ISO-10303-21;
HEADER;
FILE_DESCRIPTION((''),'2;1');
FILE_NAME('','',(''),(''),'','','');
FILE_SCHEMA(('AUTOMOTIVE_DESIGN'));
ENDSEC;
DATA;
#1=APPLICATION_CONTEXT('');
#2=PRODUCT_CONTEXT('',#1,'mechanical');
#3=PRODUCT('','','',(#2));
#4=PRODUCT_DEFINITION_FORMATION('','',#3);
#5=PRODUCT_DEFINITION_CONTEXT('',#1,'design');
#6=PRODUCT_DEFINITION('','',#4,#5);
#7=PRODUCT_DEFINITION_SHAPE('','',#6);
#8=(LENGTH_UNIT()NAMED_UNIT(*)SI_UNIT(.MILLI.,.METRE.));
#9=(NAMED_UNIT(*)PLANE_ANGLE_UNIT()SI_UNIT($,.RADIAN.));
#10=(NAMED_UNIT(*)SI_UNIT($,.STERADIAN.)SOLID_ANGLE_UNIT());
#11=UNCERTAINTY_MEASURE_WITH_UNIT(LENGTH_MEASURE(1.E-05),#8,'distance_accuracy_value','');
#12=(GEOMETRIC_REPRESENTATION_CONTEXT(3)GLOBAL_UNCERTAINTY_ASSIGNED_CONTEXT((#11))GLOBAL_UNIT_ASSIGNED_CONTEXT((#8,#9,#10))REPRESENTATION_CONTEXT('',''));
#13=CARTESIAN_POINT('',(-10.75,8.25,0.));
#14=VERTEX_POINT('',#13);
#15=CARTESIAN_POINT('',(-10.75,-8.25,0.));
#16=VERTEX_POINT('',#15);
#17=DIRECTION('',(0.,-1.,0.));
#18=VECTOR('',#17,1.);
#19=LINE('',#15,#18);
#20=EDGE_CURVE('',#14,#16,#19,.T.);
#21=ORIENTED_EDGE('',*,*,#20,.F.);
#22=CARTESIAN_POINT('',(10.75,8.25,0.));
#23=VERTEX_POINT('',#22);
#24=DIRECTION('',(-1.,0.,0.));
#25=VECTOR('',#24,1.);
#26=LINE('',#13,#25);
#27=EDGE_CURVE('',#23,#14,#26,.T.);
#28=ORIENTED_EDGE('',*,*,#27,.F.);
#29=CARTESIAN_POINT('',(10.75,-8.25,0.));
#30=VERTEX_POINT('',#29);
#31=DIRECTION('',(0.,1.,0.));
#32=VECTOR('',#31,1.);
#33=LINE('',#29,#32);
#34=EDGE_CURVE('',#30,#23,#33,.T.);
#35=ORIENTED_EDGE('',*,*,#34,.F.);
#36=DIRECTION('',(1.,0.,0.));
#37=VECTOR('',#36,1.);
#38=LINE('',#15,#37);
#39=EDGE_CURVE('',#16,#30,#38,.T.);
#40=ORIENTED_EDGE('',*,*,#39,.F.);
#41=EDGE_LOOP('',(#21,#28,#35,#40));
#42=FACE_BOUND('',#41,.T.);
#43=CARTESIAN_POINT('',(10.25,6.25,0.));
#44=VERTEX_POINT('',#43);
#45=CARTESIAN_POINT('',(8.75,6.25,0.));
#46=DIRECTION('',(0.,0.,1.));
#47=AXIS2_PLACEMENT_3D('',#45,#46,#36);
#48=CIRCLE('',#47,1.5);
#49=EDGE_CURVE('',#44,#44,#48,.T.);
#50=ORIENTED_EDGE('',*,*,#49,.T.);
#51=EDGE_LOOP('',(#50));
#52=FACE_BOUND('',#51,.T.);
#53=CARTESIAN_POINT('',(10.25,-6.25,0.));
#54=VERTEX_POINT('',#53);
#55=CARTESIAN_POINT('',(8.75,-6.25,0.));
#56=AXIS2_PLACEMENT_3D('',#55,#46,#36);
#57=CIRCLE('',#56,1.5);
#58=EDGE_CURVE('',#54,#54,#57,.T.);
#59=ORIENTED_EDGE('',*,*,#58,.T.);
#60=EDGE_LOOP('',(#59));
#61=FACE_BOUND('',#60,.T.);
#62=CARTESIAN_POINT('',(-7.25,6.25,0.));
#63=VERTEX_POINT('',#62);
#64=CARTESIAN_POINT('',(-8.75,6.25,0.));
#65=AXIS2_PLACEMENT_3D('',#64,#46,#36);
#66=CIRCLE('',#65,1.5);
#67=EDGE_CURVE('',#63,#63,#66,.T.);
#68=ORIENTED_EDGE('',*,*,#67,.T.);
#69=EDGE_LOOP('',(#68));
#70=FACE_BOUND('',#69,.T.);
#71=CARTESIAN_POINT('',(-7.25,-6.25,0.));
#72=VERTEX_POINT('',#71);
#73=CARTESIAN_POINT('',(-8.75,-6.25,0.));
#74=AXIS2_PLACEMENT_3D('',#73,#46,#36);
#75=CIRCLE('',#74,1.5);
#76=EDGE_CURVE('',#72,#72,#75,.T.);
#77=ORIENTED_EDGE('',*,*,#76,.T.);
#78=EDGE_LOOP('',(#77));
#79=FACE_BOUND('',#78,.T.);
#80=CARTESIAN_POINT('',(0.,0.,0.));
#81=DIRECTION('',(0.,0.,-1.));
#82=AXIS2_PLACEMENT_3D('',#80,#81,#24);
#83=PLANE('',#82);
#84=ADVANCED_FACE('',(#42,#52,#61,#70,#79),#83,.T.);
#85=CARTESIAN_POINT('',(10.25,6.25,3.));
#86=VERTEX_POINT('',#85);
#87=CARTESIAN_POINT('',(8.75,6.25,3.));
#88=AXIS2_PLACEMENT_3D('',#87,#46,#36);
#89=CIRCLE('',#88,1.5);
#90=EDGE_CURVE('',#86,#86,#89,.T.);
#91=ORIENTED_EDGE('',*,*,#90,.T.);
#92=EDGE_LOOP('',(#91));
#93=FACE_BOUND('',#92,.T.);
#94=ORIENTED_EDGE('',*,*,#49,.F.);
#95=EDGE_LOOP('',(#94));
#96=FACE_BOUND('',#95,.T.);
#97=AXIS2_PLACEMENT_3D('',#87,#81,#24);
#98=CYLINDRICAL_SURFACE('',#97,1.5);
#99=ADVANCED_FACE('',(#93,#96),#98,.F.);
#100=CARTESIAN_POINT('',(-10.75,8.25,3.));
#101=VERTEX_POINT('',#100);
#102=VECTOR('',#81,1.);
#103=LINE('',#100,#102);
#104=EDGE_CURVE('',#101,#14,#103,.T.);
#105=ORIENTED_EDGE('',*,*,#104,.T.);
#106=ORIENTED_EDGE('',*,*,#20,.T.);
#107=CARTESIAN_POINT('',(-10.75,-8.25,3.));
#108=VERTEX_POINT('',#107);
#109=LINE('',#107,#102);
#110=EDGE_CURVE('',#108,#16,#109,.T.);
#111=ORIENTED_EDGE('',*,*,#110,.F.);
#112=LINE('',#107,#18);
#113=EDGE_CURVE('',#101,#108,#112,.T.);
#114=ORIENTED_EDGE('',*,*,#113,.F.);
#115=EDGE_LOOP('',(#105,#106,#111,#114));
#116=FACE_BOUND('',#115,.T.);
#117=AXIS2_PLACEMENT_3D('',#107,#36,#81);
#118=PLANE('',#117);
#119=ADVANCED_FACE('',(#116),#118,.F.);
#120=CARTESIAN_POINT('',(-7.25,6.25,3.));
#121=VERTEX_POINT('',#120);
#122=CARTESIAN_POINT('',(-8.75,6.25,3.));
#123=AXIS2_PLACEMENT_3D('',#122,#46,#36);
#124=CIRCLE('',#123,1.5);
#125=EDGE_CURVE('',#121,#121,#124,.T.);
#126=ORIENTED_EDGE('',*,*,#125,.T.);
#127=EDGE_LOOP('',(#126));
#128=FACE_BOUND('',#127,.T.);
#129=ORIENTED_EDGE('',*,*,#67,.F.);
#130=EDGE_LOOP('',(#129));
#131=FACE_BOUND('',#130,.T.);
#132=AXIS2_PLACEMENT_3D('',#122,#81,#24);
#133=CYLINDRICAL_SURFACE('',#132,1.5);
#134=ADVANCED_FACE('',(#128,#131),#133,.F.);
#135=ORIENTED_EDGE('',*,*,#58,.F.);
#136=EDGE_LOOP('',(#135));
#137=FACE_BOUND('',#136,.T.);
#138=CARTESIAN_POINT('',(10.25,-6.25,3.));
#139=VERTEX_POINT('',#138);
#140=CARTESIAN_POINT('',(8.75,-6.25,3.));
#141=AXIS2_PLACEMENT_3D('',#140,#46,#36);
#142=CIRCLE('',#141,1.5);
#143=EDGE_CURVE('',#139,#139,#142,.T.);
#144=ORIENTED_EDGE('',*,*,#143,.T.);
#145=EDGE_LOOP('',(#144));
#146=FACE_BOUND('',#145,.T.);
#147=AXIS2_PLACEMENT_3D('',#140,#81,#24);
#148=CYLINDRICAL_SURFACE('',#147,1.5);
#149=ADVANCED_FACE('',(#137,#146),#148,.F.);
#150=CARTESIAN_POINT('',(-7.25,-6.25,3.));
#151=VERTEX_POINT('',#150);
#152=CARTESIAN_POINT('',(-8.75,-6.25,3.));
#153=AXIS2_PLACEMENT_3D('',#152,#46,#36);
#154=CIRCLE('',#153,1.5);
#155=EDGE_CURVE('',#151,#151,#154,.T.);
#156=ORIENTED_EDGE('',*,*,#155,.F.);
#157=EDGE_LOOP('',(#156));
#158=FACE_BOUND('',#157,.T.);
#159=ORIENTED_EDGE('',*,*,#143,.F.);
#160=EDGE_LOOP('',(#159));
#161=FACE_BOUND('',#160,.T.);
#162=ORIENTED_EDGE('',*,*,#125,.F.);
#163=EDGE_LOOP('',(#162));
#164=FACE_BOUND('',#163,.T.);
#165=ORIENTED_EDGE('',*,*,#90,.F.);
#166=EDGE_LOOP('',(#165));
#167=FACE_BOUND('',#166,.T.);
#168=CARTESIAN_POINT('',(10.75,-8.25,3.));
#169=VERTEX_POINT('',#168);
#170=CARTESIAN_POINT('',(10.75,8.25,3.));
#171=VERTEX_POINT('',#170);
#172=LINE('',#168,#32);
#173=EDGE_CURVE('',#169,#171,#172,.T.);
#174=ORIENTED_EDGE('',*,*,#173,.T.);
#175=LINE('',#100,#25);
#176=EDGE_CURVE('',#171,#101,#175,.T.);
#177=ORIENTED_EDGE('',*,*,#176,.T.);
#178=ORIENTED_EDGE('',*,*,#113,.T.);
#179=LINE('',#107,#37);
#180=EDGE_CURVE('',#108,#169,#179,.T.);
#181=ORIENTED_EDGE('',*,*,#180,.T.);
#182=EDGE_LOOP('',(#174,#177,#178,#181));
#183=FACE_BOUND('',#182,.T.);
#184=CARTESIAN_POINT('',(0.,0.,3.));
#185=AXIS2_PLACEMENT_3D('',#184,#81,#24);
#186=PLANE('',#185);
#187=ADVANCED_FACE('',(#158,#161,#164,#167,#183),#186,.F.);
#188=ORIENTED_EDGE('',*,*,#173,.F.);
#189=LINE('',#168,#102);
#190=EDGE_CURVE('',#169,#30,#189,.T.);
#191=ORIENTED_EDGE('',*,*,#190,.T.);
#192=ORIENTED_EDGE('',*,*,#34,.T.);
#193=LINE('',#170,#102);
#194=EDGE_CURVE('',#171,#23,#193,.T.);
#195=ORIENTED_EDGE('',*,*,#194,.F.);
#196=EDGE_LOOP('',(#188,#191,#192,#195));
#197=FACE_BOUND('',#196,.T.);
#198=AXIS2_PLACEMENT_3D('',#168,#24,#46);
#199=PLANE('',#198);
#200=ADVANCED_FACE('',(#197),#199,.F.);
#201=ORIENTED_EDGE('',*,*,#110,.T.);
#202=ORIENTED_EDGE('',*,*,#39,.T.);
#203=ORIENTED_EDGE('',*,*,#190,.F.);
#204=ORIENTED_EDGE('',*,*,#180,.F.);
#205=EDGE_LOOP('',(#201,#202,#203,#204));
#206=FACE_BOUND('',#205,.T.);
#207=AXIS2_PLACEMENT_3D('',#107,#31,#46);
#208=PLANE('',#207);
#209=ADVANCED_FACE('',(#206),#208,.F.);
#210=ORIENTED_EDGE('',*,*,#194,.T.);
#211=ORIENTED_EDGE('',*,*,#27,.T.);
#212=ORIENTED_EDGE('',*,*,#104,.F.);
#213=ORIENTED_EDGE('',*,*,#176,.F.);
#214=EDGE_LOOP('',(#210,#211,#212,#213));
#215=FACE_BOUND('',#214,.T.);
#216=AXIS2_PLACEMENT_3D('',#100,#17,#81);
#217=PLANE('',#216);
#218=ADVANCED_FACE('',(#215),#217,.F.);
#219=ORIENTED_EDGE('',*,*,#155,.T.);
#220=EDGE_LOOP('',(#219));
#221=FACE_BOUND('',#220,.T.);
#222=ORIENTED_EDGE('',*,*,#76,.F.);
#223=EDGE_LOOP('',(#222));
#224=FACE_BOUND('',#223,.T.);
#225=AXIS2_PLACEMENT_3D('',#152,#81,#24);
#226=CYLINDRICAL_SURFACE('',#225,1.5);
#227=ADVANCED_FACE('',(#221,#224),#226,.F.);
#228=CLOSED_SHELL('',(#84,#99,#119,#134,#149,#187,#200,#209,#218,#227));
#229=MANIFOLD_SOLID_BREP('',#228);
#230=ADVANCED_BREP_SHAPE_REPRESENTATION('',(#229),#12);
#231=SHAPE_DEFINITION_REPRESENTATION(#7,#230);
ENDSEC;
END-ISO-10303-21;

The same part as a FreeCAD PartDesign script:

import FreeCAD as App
import Part
import Sketcher

V = App.Vector


def add_polygon(sketch, points):
    """Adds a closed chain of lines whose ends are joined by coincident constraints."""
    first, n = sketch.GeometryCount, len(points)
    for a, b in zip(points, points[1:] + points[:1]):
        sketch.addGeometry(Part.LineSegment(App.Vector(*a, 0), App.Vector(*b, 0)), False)
    for i in range(n):
        sketch.addConstraint(Sketcher.Constraint("Coincident", first + i, 2, first + (i + 1) % n, 1))

doc = App.newDocument("Part")
body = doc.addObject("PartDesign::Body", "Body")

# Sketch on XY plane
sketch1 = body.newObject("Sketcher::SketchObject", "Sketch")
sketch1.AttachmentSupport = (doc.getObject("XY_Plane"), [""])
sketch1.MapMode = "FlatFace"
add_polygon(sketch1, [(-10.8, 8.2), (-10.8, -8.2), (10.8, -8.2), (10.8, 8.2)])  # lines 0-3
sketch1.addGeometry(Part.Circle(V(-8.8, -6.2, 0), V(0, 0, 1), 1.5), False)  # 4
sketch1.addGeometry(Part.Circle(V(8.8, -6.2, 0), V(0, 0, 1), 1.5), False)  # 5
sketch1.addGeometry(Part.Circle(V(-8.8, 6.2, 0), V(0, 0, 1), 1.5), False)  # 6
sketch1.addGeometry(Part.Circle(V(8.8, 6.2, 0), V(0, 0, 1), 1.5), False)  # 7
sketch1.addConstraint(Sketcher.Constraint("Vertical", 0))
sketch1.addConstraint(Sketcher.Constraint("Horizontal", 1))
sketch1.addConstraint(Sketcher.Constraint("Vertical", 2))
sketch1.addConstraint(Sketcher.Constraint("Horizontal", 3))
sketch1.addConstraint(Sketcher.Constraint("Equal", 4, 5))
sketch1.addConstraint(Sketcher.Constraint("Equal", 5, 6))
sketch1.addConstraint(Sketcher.Constraint("Equal", 6, 7))
sketch1.addConstraint(Sketcher.Constraint("Symmetric", 5, 3, 6, 3, -1, 1))
sketch1.addConstraint(Sketcher.Constraint("Symmetric", 4, 3, 7, 3, -1, 1))
sketch1.addConstraint(Sketcher.Constraint("Symmetric", 0, 2, 2, 2, -1, 1))
sketch1.addConstraint(Sketcher.Constraint("Symmetric", 4, 3, 5, 3, -2))
sketch1.addConstraint(Sketcher.Constraint("Diameter", 4, 3.0))
sketch1.addConstraint(Sketcher.Constraint("DistanceX", 1, 1, 1, 2, 21.5))
sketch1.addConstraint(Sketcher.Constraint("DistanceY", 0, 2, 0, 1, 16.5))
sketch1.addConstraint(Sketcher.Constraint("DistanceX", 0, 2, 4, 3, 2.0))
sketch1.addConstraint(Sketcher.Constraint("DistanceY", 0, 2, 4, 3, 2.0))
pad1 = body.newObject("PartDesign::Pad", "Pad")
pad1.Profile = sketch1
pad1.Length = 3

doc.recompute()
